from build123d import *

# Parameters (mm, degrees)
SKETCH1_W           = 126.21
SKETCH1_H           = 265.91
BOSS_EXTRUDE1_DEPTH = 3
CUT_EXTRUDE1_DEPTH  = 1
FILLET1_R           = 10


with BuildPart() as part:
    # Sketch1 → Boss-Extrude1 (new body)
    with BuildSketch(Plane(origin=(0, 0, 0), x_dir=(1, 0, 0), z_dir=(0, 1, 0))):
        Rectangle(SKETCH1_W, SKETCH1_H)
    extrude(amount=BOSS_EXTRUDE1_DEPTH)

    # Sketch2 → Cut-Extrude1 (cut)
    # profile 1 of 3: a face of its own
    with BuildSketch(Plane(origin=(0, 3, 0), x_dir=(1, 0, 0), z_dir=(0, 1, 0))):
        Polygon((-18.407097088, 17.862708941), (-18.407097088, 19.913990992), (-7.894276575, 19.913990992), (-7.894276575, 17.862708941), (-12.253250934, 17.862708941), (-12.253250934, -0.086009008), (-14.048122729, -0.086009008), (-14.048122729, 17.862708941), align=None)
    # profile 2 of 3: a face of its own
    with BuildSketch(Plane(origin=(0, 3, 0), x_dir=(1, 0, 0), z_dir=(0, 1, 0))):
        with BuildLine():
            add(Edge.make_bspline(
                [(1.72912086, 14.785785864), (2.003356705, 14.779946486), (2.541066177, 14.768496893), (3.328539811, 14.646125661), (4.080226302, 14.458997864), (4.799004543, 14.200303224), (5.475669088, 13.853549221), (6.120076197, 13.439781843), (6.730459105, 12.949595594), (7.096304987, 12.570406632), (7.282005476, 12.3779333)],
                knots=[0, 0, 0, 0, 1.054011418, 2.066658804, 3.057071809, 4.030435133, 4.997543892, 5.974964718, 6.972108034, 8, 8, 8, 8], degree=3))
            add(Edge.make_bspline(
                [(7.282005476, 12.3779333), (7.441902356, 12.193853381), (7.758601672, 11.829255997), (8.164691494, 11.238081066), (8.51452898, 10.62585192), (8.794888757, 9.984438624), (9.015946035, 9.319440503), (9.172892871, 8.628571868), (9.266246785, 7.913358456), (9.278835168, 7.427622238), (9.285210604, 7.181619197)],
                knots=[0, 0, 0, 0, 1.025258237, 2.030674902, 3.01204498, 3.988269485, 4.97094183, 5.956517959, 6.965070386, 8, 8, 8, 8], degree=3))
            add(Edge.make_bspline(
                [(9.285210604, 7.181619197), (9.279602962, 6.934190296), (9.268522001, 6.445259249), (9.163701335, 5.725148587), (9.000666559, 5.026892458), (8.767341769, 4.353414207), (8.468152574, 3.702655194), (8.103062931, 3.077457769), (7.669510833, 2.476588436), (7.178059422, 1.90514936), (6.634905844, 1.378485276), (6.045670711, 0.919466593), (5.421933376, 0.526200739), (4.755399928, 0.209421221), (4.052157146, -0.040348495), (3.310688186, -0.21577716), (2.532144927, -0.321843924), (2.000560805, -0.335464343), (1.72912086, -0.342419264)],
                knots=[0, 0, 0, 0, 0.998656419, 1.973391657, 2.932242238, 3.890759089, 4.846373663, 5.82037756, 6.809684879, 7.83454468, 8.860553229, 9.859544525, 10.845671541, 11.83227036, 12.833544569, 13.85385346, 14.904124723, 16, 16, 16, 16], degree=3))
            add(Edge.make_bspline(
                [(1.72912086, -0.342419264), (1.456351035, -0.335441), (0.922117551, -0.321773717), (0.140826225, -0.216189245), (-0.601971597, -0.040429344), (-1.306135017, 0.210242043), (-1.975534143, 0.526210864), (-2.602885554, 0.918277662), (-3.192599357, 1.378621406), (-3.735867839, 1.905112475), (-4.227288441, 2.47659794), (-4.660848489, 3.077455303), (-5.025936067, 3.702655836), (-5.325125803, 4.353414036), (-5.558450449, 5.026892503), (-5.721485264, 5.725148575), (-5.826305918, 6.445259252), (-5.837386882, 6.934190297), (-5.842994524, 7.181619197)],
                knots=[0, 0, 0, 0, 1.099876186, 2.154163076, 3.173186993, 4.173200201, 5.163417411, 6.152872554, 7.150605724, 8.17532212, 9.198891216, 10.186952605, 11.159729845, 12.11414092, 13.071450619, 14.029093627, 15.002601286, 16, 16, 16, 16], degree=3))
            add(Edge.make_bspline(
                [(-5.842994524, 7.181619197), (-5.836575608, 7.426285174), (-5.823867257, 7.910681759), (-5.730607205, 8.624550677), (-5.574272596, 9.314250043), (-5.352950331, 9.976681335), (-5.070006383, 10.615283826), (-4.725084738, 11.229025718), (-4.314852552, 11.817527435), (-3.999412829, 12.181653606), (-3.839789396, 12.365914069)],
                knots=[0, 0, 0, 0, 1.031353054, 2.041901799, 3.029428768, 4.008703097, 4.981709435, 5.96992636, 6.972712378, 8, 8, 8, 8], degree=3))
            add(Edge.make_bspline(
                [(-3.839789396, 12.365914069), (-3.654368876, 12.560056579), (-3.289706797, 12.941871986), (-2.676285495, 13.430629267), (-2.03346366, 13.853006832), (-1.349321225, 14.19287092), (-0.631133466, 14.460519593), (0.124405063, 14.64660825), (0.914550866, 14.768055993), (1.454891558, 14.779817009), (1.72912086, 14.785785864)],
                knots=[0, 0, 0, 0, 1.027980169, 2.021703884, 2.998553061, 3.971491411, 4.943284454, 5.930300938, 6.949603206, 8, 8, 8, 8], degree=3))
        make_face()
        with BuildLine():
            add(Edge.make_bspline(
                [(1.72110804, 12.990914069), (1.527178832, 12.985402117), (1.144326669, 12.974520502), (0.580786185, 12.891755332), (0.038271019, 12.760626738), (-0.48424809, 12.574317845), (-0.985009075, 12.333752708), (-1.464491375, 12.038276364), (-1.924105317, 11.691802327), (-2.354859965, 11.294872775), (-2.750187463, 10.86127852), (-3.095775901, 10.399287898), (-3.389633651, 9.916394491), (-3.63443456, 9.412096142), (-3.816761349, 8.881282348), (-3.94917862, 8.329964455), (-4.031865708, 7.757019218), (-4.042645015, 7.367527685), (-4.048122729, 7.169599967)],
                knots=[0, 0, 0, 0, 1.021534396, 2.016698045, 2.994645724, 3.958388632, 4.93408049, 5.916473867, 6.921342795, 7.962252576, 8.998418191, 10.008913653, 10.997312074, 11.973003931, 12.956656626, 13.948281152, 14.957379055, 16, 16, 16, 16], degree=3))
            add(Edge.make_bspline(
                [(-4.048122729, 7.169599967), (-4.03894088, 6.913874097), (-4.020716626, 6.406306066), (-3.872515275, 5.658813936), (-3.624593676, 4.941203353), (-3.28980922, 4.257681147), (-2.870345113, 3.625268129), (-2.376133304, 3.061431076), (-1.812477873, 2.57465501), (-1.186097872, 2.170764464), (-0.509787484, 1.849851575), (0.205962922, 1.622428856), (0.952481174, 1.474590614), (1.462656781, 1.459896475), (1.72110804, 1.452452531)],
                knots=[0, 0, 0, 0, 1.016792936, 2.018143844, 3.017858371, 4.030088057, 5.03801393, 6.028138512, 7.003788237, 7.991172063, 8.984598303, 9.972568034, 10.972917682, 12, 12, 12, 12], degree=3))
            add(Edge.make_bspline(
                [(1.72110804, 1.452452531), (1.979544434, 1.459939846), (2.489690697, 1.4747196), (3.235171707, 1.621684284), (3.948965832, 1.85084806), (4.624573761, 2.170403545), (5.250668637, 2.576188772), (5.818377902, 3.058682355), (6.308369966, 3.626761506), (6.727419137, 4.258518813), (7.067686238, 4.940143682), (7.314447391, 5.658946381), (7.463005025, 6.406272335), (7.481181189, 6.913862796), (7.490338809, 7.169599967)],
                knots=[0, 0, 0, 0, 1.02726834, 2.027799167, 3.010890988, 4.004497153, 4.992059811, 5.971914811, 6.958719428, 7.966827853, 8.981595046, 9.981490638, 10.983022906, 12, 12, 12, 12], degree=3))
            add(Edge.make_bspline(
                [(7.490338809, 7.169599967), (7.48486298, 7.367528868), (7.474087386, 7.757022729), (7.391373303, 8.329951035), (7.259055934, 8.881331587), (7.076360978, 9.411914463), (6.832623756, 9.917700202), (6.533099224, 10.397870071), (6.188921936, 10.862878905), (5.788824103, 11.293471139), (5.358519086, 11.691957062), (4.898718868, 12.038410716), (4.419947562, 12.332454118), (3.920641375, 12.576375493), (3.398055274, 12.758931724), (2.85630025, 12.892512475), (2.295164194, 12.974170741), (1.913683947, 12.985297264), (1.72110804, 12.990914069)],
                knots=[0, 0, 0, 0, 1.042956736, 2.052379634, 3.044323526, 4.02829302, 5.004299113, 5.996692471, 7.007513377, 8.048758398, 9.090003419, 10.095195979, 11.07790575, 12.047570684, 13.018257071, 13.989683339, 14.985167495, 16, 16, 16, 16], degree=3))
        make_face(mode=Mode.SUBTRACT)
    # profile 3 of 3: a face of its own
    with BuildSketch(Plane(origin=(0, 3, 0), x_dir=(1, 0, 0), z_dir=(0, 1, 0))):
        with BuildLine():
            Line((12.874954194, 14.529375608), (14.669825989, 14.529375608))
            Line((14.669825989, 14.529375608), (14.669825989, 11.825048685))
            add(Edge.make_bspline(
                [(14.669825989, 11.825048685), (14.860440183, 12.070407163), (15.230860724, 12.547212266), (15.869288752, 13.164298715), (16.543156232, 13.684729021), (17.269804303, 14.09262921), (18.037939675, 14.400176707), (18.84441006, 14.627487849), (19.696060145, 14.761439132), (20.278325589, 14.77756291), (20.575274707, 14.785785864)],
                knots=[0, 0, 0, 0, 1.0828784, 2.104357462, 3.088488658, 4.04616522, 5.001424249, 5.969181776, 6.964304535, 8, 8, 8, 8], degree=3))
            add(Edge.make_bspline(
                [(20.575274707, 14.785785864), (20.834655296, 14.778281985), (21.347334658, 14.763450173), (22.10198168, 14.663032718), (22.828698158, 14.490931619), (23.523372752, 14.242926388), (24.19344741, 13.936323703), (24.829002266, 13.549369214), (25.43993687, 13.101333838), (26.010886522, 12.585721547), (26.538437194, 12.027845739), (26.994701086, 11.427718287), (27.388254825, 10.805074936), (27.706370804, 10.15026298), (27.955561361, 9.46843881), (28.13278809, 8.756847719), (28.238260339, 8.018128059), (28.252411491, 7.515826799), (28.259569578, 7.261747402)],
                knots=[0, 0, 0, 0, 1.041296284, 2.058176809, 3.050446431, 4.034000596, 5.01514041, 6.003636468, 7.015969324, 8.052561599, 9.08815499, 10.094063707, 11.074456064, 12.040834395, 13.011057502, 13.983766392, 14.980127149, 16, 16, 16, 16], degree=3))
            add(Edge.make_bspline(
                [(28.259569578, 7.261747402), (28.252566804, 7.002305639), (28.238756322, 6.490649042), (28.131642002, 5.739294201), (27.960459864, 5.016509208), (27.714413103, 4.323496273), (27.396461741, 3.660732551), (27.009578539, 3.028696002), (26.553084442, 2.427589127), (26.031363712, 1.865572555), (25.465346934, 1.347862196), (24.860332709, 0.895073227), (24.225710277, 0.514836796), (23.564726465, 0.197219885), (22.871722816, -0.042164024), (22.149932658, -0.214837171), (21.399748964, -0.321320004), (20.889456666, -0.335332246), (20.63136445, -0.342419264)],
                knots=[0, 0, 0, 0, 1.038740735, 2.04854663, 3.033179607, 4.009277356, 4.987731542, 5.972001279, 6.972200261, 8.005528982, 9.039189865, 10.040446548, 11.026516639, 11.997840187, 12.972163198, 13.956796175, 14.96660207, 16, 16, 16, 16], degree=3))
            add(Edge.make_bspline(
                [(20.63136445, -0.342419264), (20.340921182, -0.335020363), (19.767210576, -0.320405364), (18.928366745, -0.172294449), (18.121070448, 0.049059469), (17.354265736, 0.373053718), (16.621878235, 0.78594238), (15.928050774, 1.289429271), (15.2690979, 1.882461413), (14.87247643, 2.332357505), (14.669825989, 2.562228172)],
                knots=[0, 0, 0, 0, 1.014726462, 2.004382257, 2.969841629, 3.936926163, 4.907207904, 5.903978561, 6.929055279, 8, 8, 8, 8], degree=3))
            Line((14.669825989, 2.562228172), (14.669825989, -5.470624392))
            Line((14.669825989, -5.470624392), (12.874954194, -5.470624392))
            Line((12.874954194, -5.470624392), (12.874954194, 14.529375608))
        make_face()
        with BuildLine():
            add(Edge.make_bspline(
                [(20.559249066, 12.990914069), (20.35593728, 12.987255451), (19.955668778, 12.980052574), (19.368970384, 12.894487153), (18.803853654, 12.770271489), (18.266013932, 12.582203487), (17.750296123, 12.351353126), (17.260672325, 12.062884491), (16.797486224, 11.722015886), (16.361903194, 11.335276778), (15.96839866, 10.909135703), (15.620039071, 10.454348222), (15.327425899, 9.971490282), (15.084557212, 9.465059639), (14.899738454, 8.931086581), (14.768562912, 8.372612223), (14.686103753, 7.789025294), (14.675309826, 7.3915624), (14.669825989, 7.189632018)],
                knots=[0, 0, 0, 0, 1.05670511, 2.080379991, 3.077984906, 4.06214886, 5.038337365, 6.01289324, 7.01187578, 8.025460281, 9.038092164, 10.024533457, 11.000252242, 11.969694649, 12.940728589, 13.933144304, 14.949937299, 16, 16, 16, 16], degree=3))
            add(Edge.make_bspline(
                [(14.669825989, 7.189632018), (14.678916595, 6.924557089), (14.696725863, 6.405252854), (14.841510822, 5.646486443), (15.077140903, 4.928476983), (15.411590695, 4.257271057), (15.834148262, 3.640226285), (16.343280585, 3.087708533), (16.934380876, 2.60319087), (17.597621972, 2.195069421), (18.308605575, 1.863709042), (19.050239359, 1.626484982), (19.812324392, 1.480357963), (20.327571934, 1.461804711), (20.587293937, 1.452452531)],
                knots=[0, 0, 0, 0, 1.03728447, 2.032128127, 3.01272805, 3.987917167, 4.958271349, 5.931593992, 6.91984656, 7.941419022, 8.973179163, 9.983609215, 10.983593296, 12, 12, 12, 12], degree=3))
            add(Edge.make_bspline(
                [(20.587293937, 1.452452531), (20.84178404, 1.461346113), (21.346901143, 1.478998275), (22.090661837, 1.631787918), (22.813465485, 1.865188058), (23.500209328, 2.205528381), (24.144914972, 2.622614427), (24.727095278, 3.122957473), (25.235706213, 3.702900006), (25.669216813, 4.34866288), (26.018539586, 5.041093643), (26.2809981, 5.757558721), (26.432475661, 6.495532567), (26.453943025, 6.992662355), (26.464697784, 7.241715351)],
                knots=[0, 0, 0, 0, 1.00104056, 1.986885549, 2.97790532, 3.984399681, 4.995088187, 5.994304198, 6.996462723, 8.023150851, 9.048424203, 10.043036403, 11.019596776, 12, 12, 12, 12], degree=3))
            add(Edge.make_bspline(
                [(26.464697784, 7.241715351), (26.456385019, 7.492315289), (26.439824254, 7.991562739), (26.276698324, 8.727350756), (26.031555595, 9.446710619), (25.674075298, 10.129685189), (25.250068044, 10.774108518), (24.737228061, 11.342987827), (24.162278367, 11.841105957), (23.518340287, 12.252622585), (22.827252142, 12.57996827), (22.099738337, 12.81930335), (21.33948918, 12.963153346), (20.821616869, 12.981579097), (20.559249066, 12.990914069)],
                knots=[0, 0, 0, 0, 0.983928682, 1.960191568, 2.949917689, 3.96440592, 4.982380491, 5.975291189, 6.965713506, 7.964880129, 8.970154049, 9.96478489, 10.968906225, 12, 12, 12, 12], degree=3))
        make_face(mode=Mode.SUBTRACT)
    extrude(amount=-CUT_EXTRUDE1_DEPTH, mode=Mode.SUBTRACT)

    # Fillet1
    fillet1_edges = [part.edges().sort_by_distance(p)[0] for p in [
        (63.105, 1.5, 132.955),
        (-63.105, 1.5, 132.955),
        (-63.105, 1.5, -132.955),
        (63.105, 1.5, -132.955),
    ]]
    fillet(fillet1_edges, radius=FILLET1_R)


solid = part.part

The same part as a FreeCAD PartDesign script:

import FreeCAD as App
import Part
import Sketcher
from FreeCAD import Vector


def edges_at(feature, points):
    """Names of the edges that pass closest to the given points."""
    edges = feature.Shape.Edges
    near = lambda p: min(range(len(edges)), key=lambda i: edges[i].distToShape(Part.Vertex(*p))[0])
    return sorted({f"Edge{near(p) + 1}" for p in points})

doc = App.newDocument("Part")
params = doc.addObject("Spreadsheet::Sheet", "Params")
for row, (alias, value) in enumerate([
    ("sketch1_width", "126.21 mm"),
    ("sketch1_height", "265.91 mm"),
    ("pad1_length", "3 mm"),
    ("sketch2_height", "20 mm"),
    ("pocket1_length", "1 mm"),
    ("fillet_radius", "10 mm"),
], start=1):
    params.set(f"A{row}", alias)
    params.set(f"B{row}", "=" + value)
    params.setAlias(f"B{row}", alias)

body = doc.addObject("PartDesign::Body", "Body")

sketch1 = doc.addObject("Sketcher::SketchObject", "Sketch")
body.addObject(sketch1)
sketch1.AttachmentSupport = (doc.XZ_Plane, [""])
sketch1.MapMode = "FlatFace"
sketch1.addGeometry([
    Part.LineSegment(Vector(-63.105, -132.955, 0), Vector(-63.105, 132.955, 0)),
    Part.LineSegment(Vector(-63.105, 132.955, 0), Vector(63.105, 132.955, 0)),
    Part.LineSegment(Vector(63.105, 132.955, 0), Vector(63.105, -132.955, 0)),
    Part.LineSegment(Vector(63.105, -132.955, 0), Vector(-63.105, -132.955, 0)),
], False)
sketch1.addConstraint([
    Sketcher.Constraint("Coincident", 0, 2, 1, 1),
    Sketcher.Constraint("Coincident", 1, 2, 2, 1),
    Sketcher.Constraint("Coincident", 2, 2, 3, 1),
    Sketcher.Constraint("Coincident", 3, 2, 0, 1),
    Sketcher.Constraint("Vertical", 0),
    Sketcher.Constraint("Horizontal", 1),
    Sketcher.Constraint("Vertical", 2),
    Sketcher.Constraint("Horizontal", 3),
    Sketcher.Constraint("Symmetric", 0, 2, 2, 2, -1, 1),
    Sketcher.Constraint("DistanceX", 1, 1, 1, 2, 126.21),
    Sketcher.Constraint("DistanceY", 0, 1, 0, 2, 265.91),
])
sketch1.setExpression("Constraints[9]", "Params.sketch1_width")
sketch1.setExpression("Constraints[10]", "Params.sketch1_height")
pad1 = doc.addObject("PartDesign::Pad", "Pad")
body.addObject(pad1)
pad1.Profile = sketch1
pad1.setExpression("Length", "Params.pad1_length")
pad1.Reversed = True

sketch2 = doc.addObject("Sketcher::SketchObject", "Sketch001")
body.addObject(sketch2)
sketch2.AttachmentSupport = (doc.XZ_Plane, [""])
sketch2.MapMode = "FlatFace"
sketch2.AttachmentOffset = App.Placement(Vector(0, 0, -3), App.Rotation())
sketch2.addGeometry([
    Part.LineSegment(Vector(-18.407097, -19.913991, 0), Vector(-18.407097, -17.862709, 0)),
    Part.LineSegment(Vector(-18.407097, -17.862709, 0), Vector(-14.048123, -17.862709, 0)),
    Part.LineSegment(Vector(-14.048123, -17.862709, 0), Vector(-14.048123, 0.086009, 0)),
    Part.LineSegment(Vector(-14.048123, 0.086009, 0), Vector(-12.253251, 0.086009, 0)),
    Part.LineSegment(Vector(-12.253251, 0.086009, 0), Vector(-12.253251, -17.862709, 0)),
    Part.LineSegment(Vector(-12.253251, -17.862709, 0), Vector(-7.894277, -17.862709, 0)),
    Part.LineSegment(Vector(-7.894277, -17.862709, 0), Vector(-7.894277, -19.913991, 0)),
    Part.LineSegment(Vector(-7.894277, -19.913991, 0), Vector(-18.407097, -19.913991, 0)),
    Part.BSplineCurve([Vector(1.729121, -14.785786, 0), Vector(2.003357, -14.779946, 0), Vector(2.541066, -14.768497, 0), Vector(3.32854, -14.646126, 0), Vector(4.080226, -14.458998, 0), Vector(4.799005, -14.200303, 0), Vector(5.475669, -13.853549, 0), Vector(6.120076, -13.439782, 0), Vector(6.730459, -12.949596, 0), Vector(7.096305, -12.570407, 0), Vector(7.282005, -12.377933, 0)], [4, 1, 1, 1, 1, 1, 1, 1, 4], [0, 1.054011418, 2.066658804, 3.057071809, 4.030435133, 4.997543892, 5.974964718, 6.972108034, 8], False, 3, [1, 1, 1, 1, 1, 1, 1, 1, 1, 1, 1], False),
    Part.BSplineCurve([Vector(-3.839789, -12.365914, 0), Vector(-3.654369, -12.560057, 0), Vector(-3.289707, -12.941872, 0), Vector(-2.676285, -13.430629, 0), Vector(-2.033464, -13.853007, 0), Vector(-1.349321, -14.192871, 0), Vector(-0.631133, -14.46052, 0), Vector(0.124405, -14.646608, 0), Vector(0.914551, -14.768056, 0), Vector(1.454892, -14.779817, 0), Vector(1.729121, -14.785786, 0)], [4, 1, 1, 1, 1, 1, 1, 1, 4], [0, 1.027980169, 2.021703884, 2.998553061, 3.971491411, 4.943284454, 5.930300938, 6.949603206, 8], False, 3, [1, 1, 1, 1, 1, 1, 1, 1, 1, 1, 1], False),
    Part.BSplineCurve([Vector(-5.842995, -7.181619, 0), Vector(-5.836576, -7.426285, 0), Vector(-5.823867, -7.910682, 0), Vector(-5.730607, -8.624551, 0), Vector(-5.574273, -9.31425, 0), Vector(-5.35295, -9.976681, 0), Vector(-5.070006, -10.615284, 0), Vector(-4.725085, -11.229026, 0), Vector(-4.314853, -11.817527, 0), Vector(-3.999413, -12.181654, 0), Vector(-3.839789, -12.365914, 0)], [4, 1, 1, 1, 1, 1, 1, 1, 4], [0, 1.031353054, 2.041901799, 3.029428768, 4.008703097, 4.981709435, 5.96992636, 6.972712378, 8], False, 3, [1, 1, 1, 1, 1, 1, 1, 1, 1, 1, 1], False),
    Part.BSplineCurve([Vector(1.729121, 0.342419, 0), Vector(1.456351, 0.335441, 0), Vector(0.922118, 0.321774, 0), Vector(0.140826, 0.216189, 0), Vector(-0.601972, 0.040429, 0), Vector(-1.306135, -0.210242, 0), Vector(-1.975534, -0.526211, 0), Vector(-2.602886, -0.918278, 0), Vector(-3.192599, -1.378621, 0), Vector(-3.735868, -1.905112, 0), Vector(-4.227288, -2.476598, 0), Vector(-4.660848, -3.077455, 0), Vector(-5.025936, -3.702656, 0), Vector(-5.325126, -4.353414, 0), Vector(-5.55845, -5.026893, 0), Vector(-5.721485, -5.725149, 0), Vector(-5.826306, -6.445259, 0), Vector(-5.837387, -6.93419, 0), Vector(-5.842995, -7.181619, 0)], [4, 1, 1, 1, 1, 1, 1, 1, 1, 1, 1, 1, 1, 1, 1, 1, 4], [0, 1.099876186, 2.154163076, 3.173186993, 4.173200201, 5.163417411, 6.152872554, 7.150605724, 8.17532212, 9.198891216, 10.186952605, 11.159729845, 12.11414092, 13.071450619, 14.029093627, 15.002601286, 16], False, 3, [1, 1, 1, 1, 1, 1, 1, 1, 1, 1, 1, 1, 1, 1, 1, 1, 1, 1, 1], False),
    Part.BSplineCurve([Vector(9.285211, -7.181619, 0), Vector(9.279603, -6.93419, 0), Vector(9.268522, -6.445259, 0), Vector(9.163701, -5.725149, 0), Vector(9.000667, -5.026892, 0), Vector(8.767342, -4.353414, 0), Vector(8.468153, -3.702655, 0), Vector(8.103063, -3.077458, 0), Vector(7.669511, -2.476588, 0), Vector(7.178059, -1.905149, 0), Vector(6.634906, -1.378485, 0), Vector(6.045671, -0.919467, 0), Vector(5.421933, -0.526201, 0), Vector(4.7554, -0.209421, 0), Vector(4.052157, 0.040348, 0), Vector(3.310688, 0.215777, 0), Vector(2.532145, 0.321844, 0), Vector(2.000561, 0.335464, 0), Vector(1.729121, 0.342419, 0)], [4, 1, 1, 1, 1, 1, 1, 1, 1, 1, 1, 1, 1, 1, 1, 1, 4], [0, 0.998656419, 1.973391657, 2.932242238, 3.890759089, 4.846373663, 5.82037756, 6.809684879, 7.83454468, 8.860553229, 9.859544525, 10.845671541, 11.83227036, 12.833544569, 13.85385346, 14.904124723, 16], False, 3, [1, 1, 1, 1, 1, 1, 1, 1, 1, 1, 1, 1, 1, 1, 1, 1, 1, 1, 1], False),
    Part.BSplineCurve([Vector(7.282005, -12.377933, 0), Vector(7.441902, -12.193853, 0), Vector(7.758602, -11.829256, 0), Vector(8.164691, -11.238081, 0), Vector(8.514529, -10.625852, 0), Vector(8.794889, -9.984439, 0), Vector(9.015946, -9.319441, 0), Vector(9.172893, -8.628572, 0), Vector(9.266247, -7.913358, 0), Vector(9.278835, -7.427622, 0), Vector(9.285211, -7.181619, 0)], [4, 1, 1, 1, 1, 1, 1, 1, 4], [0, 1.025258237, 2.030674902, 3.01204498, 3.988269485, 4.97094183, 5.956517959, 6.965070386, 8], False, 3, [1, 1, 1, 1, 1, 1, 1, 1, 1, 1, 1], False),
    Part.BSplineCurve([Vector(7.490339, -7.1696, 0), Vector(7.484863, -7.367529, 0), Vector(7.474087, -7.757023, 0), Vector(7.391373, -8.329951, 0), Vector(7.259056, -8.881332, 0), Vector(7.076361, -9.411914, 0), Vector(6.832624, -9.9177, 0), Vector(6.533099, -10.39787, 0), Vector(6.188922, -10.862879, 0), Vector(5.788824, -11.293471, 0), Vector(5.358519, -11.691957, 0), Vector(4.898719, -12.038411, 0), Vector(4.419948, -12.332454, 0), Vector(3.920641, -12.576375, 0), Vector(3.398055, -12.758932, 0), Vector(2.8563, -12.892512, 0), Vector(2.295164, -12.974171, 0), Vector(1.913684, -12.985297, 0), Vector(1.721108, -12.990914, 0)], [4, 1, 1, 1, 1, 1, 1, 1, 1, 1, 1, 1, 1, 1, 1, 1, 4], [0, 1.042956736, 2.052379634, 3.044323526, 4.02829302, 5.004299113, 5.996692471, 7.007513377, 8.048758398, 9.090003419, 10.095195979, 11.07790575, 12.047570684, 13.018257071, 13.989683339, 14.985167495, 16], False, 3, [1, 1, 1, 1, 1, 1, 1, 1, 1, 1, 1, 1, 1, 1, 1, 1, 1, 1, 1], False),
    Part.BSplineCurve([Vector(1.721108, -1.452453, 0), Vector(1.979544, -1.45994, 0), Vector(2.489691, -1.47472, 0), Vector(3.235172, -1.621684, 0), Vector(3.948966, -1.850848, 0), Vector(4.624574, -2.170404, 0), Vector(5.250669, -2.576189, 0), Vector(5.818378, -3.058682, 0), Vector(6.30837, -3.626762, 0), Vector(6.727419, -4.258519, 0), Vector(7.067686, -4.940144, 0), Vector(7.314447, -5.658946, 0), Vector(7.463005, -6.406272, 0), Vector(7.481181, -6.913863, 0), Vector(7.490339, -7.1696, 0)], [4, 1, 1, 1, 1, 1, 1, 1, 1, 1, 1, 1, 4], [0, 1.02726834, 2.027799167, 3.010890988, 4.004497153, 4.992059811, 5.971914811, 6.958719428, 7.966827853, 8.981595046, 9.981490638, 10.983022906, 12], False, 3, [1, 1, 1, 1, 1, 1, 1, 1, 1, 1, 1, 1, 1, 1, 1], False),
    Part.BSplineCurve([Vector(-4.048123, -7.1696, 0), Vector(-4.038941, -6.913874, 0), Vector(-4.020717, -6.406306, 0), Vector(-3.872515, -5.658814, 0), Vector(-3.624594, -4.941203, 0), Vector(-3.289809, -4.257681, 0), Vector(-2.870345, -3.625268, 0), Vector(-2.376133, -3.061431, 0), Vector(-1.812478, -2.574655, 0), Vector(-1.186098, -2.170764, 0), Vector(-0.509787, -1.849852, 0), Vector(0.205963, -1.622429, 0), Vector(0.952481, -1.474591, 0), Vector(1.462657, -1.459896, 0), Vector(1.721108, -1.452453, 0)], [4, 1, 1, 1, 1, 1, 1, 1, 1, 1, 1, 1, 4], [0, 1.016792936, 2.018143844, 3.017858371, 4.030088057, 5.03801393, 6.028138512, 7.003788237, 7.991172063, 8.984598303, 9.972568034, 10.972917682, 12], False, 3, [1, 1, 1, 1, 1, 1, 1, 1, 1, 1, 1, 1, 1, 1, 1], False),
    Part.BSplineCurve([Vector(1.721108, -12.990914, 0), Vector(1.527179, -12.985402, 0), Vector(1.144327, -12.974521, 0), Vector(0.580786, -12.891755, 0), Vector(0.038271, -12.760627, 0), Vector(-0.484248, -12.574318, 0), Vector(-0.985009, -12.333753, 0), Vector(-1.464491, -12.038276, 0), Vector(-1.924105, -11.691802, 0), Vector(-2.35486, -11.294873, 0), Vector(-2.750187, -10.861279, 0), Vector(-3.095776, -10.399288, 0), Vector(-3.389634, -9.916394, 0), Vector(-3.634435, -9.412096, 0), Vector(-3.816761, -8.881282, 0), Vector(-3.949179, -8.329964, 0), Vector(-4.031866, -7.757019, 0), Vector(-4.042645, -7.367528, 0), Vector(-4.048123, -7.1696, 0)], [4, 1, 1, 1, 1, 1, 1, 1, 1, 1, 1, 1, 1, 1, 1, 1, 4], [0, 1.021534396, 2.016698045, 2.994645724, 3.958388632, 4.93408049, 5.916473867, 6.921342795, 7.962252576, 8.998418191, 10.008913653, 10.997312074, 11.973003931, 12.956656626, 13.948281152, 14.957379055, 16], False, 3, [1, 1, 1, 1, 1, 1, 1, 1, 1, 1, 1, 1, 1, 1, 1, 1, 1, 1, 1], False),
    Part.LineSegment(Vector(14.669826, -14.529376, 0), Vector(12.874954, -14.529376, 0)),
    Part.LineSegment(Vector(12.874954, -14.529376, 0), Vector(12.874954, 5.470624, 0)),
    Part.LineSegment(Vector(12.874954, 5.470624, 0), Vector(14.669826, 5.470624, 0)),
    Part.LineSegment(Vector(14.669826, 5.470624, 0), Vector(14.669826, -2.562228, 0)),
    Part.BSplineCurve([Vector(20.631364, 0.342419, 0), Vector(20.340921, 0.33502, 0), Vector(19.767211, 0.320405, 0), Vector(18.928367, 0.172294, 0), Vector(18.12107, -0.049059, 0), Vector(17.354266, -0.373054, 0), Vector(16.621878, -0.785942, 0), Vector(15.928051, -1.289429, 0), Vector(15.269098, -1.882461, 0), Vector(14.872476, -2.332358, 0), Vector(14.669826, -2.562228, 0)], [4, 1, 1, 1, 1, 1, 1, 1, 4], [0, 1.014726462, 2.004382257, 2.969841629, 3.936926163, 4.907207904, 5.903978561, 6.929055279, 8], False, 3, [1, 1, 1, 1, 1, 1, 1, 1, 1, 1, 1], False),
    Part.BSplineCurve([Vector(28.25957, -7.261747, 0), Vector(28.252567, -7.002306, 0), Vector(28.238756, -6.490649, 0), Vector(28.131642, -5.739294, 0), Vector(27.96046, -5.016509, 0), Vector(27.714413, -4.323496, 0), Vector(27.396462, -3.660733, 0), Vector(27.009579, -3.028696, 0), Vector(26.553084, -2.427589, 0), Vector(26.031364, -1.865573, 0), Vector(25.465347, -1.347862, 0), Vector(24.860333, -0.895073, 0), Vector(24.22571, -0.514837, 0), Vector(23.564726, -0.19722, 0), Vector(22.871723, 0.042164, 0), Vector(22.149933, 0.214837, 0), Vector(21.399749, 0.32132, 0), Vector(20.889457, 0.335332, 0), Vector(20.631364, 0.342419, 0)], [4, 1, 1, 1, 1, 1, 1, 1, 1, 1, 1, 1, 1, 1, 1, 1, 4], [0, 1.038740735, 2.04854663, 3.033179607, 4.009277356, 4.987731542, 5.972001279, 6.972200261, 8.005528982, 9.039189865, 10.040446548, 11.026516639, 11.997840187, 12.972163198, 13.956796175, 14.96660207, 16], False, 3, [1, 1, 1, 1, 1, 1, 1, 1, 1, 1, 1, 1, 1, 1, 1, 1, 1, 1, 1], False),
    Part.BSplineCurve([Vector(20.575275, -14.785786, 0), Vector(20.834655, -14.778282, 0), Vector(21.347335, -14.76345, 0), Vector(22.101982, -14.663033, 0), Vector(22.828698, -14.490932, 0), Vector(23.523373, -14.242926, 0), Vector(24.193447, -13.936324, 0), Vector(24.829002, -13.549369, 0), Vector(25.439937, -13.101334, 0), Vector(26.010887, -12.585722, 0), Vector(26.538437, -12.027846, 0), Vector(26.994701, -11.427718, 0), Vector(27.388255, -10.805075, 0), Vector(27.706371, -10.150263, 0), Vector(27.955561, -9.468439, 0), Vector(28.132788, -8.756848, 0), Vector(28.23826, -8.018128, 0), Vector(28.252411, -7.515827, 0), Vector(28.25957, -7.261747, 0)], [4, 1, 1, 1, 1, 1, 1, 1, 1, 1, 1, 1, 1, 1, 1, 1, 4], [0, 1.041296284, 2.058176809, 3.050446431, 4.034000596, 5.01514041, 6.003636468, 7.015969324, 8.052561599, 9.08815499, 10.094063707, 11.074456064, 12.040834395, 13.011057502, 13.983766392, 14.980127149, 16], False, 3, [1, 1, 1, 1, 1, 1, 1, 1, 1, 1, 1, 1, 1, 1, 1, 1, 1, 1, 1], False),
    Part.BSplineCurve([Vector(14.669826, -11.825049, 0), Vector(14.86044, -12.070407, 0), Vector(15.230861, -12.547212, 0), Vector(15.869289, -13.164299, 0), Vector(16.543156, -13.684729, 0), Vector(17.269804, -14.092629, 0), Vector(18.03794, -14.400177, 0), Vector(18.84441, -14.627488, 0), Vector(19.69606, -14.761439, 0), Vector(20.278326, -14.777563, 0), Vector(20.575275, -14.785786, 0)], [4, 1, 1, 1, 1, 1, 1, 1, 4], [0, 1.0828784, 2.104357462, 3.088488658, 4.04616522, 5.001424249, 5.969181776, 6.964304535, 8], False, 3, [1, 1, 1, 1, 1, 1, 1, 1, 1, 1, 1], False),
    Part.LineSegment(Vector(14.669826, -11.825049, 0), Vector(14.669826, -14.529376, 0)),
    Part.BSplineCurve([Vector(26.464698, -7.241715, 0), Vector(26.456385, -7.492315, 0), Vector(26.439824, -7.991563, 0), Vector(26.276698, -8.727351, 0), Vector(26.031556, -9.446711, 0), Vector(25.674075, -10.129685, 0), Vector(25.250068, -10.774109, 0), Vector(24.737228, -11.342988, 0), Vector(24.162278, -11.841106, 0), Vector(23.51834, -12.252623, 0), Vector(22.827252, -12.579968, 0), Vector(22.099738, -12.819303, 0), Vector(21.339489, -12.963153, 0), Vector(20.821617, -12.981579, 0), Vector(20.559249, -12.990914, 0)], [4, 1, 1, 1, 1, 1, 1, 1, 1, 1, 1, 1, 4], [0, 0.983928682, 1.960191568, 2.949917689, 3.96440592, 4.982380491, 5.975291189, 6.965713506, 7.964880129, 8.970154049, 9.96478489, 10.968906225, 12], False, 3, [1, 1, 1, 1, 1, 1, 1, 1, 1, 1, 1, 1, 1, 1, 1], False),
    Part.BSplineCurve([Vector(20.587294, -1.452453, 0), Vector(20.841784, -1.461346, 0), Vector(21.346901, -1.478998, 0), Vector(22.090662, -1.631788, 0), Vector(22.813465, -1.865188, 0), Vector(23.500209, -2.205528, 0), Vector(24.144915, -2.622614, 0), Vector(24.727095, -3.122957, 0), Vector(25.235706, -3.7029, 0), Vector(25.669217, -4.348663, 0), Vector(26.01854, -5.041094, 0), Vector(26.280998, -5.757559, 0), Vector(26.432476, -6.495533, 0), Vector(26.453943, -6.992662, 0), Vector(26.464698, -7.241715, 0)], [4, 1, 1, 1, 1, 1, 1, 1, 1, 1, 1, 1, 4], [0, 1.00104056, 1.986885549, 2.97790532, 3.984399681, 4.995088187, 5.994304198, 6.996462723, 8.023150851, 9.048424203, 10.043036403, 11.019596776, 12], False, 3, [1, 1, 1, 1, 1, 1, 1, 1, 1, 1, 1, 1, 1, 1, 1], False),
    Part.BSplineCurve([Vector(14.669826, -7.189632, 0), Vector(14.678917, -6.924557, 0), Vector(14.696726, -6.405253, 0), Vector(14.841511, -5.646486, 0), Vector(15.077141, -4.928477, 0), Vector(15.411591, -4.257271, 0), Vector(15.834148, -3.640226, 0), Vector(16.343281, -3.087709, 0), Vector(16.934381, -2.603191, 0), Vector(17.597622, -2.195069, 0), Vector(18.308606, -1.863709, 0), Vector(19.050239, -1.626485, 0), Vector(19.812324, -1.480358, 0), Vector(20.327572, -1.461805, 0), Vector(20.587294, -1.452453, 0)], [4, 1, 1, 1, 1, 1, 1, 1, 1, 1, 1, 1, 4], [0, 1.03728447, 2.032128127, 3.01272805, 3.987917167, 4.958271349, 5.931593992, 6.91984656, 7.941419022, 8.973179163, 9.983609215, 10.983593296, 12], False, 3, [1, 1, 1, 1, 1, 1, 1, 1, 1, 1, 1, 1, 1, 1, 1], False),
    Part.BSplineCurve([Vector(20.559249, -12.990914, 0), Vector(20.355937, -12.987255, 0), Vector(19.955669, -12.980053, 0), Vector(19.36897, -12.894487, 0), Vector(18.803854, -12.770271, 0), Vector(18.266014, -12.582203, 0), Vector(17.750296, -12.351353, 0), Vector(17.260672, -12.062884, 0), Vector(16.797486, -11.722016, 0), Vector(16.361903, -11.335277, 0), Vector(15.968399, -10.909136, 0), Vector(15.620039, -10.454348, 0), Vector(15.327426, -9.97149, 0), Vector(15.084557, -9.46506, 0), Vector(14.899738, -8.931087, 0), Vector(14.768563, -8.372612, 0), Vector(14.686104, -7.789025, 0), Vector(14.67531, -7.391562, 0), Vector(14.669826, -7.189632, 0)], [4, 1, 1, 1, 1, 1, 1, 1, 1, 1, 1, 1, 1, 1, 1, 1, 4], [0, 1.05670511, 2.080379991, 3.077984906, 4.06214886, 5.038337365, 6.01289324, 7.01187578, 8.025460281, 9.038092164, 10.024533457, 11.000252242, 11.969694649, 12.940728589, 13.933144304, 14.949937299, 16], False, 3, [1, 1, 1, 1, 1, 1, 1, 1, 1, 1, 1, 1, 1, 1, 1, 1, 1, 1, 1], False),
], False)
sketch2.addConstraint([
    Sketcher.Constraint("Block", 8),
    Sketcher.Constraint("Block", 9),
    Sketcher.Constraint("Block", 10),
    Sketcher.Constraint("Block", 11),
    Sketcher.Constraint("Block", 12),
    Sketcher.Constraint("Block", 13),
    Sketcher.Constraint("Block", 14),
    Sketcher.Constraint("Block", 15),
    Sketcher.Constraint("Block", 16),
    Sketcher.Constraint("Block", 17),
    Sketcher.Constraint("Block", 22),
    Sketcher.Constraint("Block", 23),
    Sketcher.Constraint("Block", 24),
    Sketcher.Constraint("Block", 25),
    Sketcher.Constraint("Block", 27),
    Sketcher.Constraint("Block", 28),
    Sketcher.Constraint("Block", 29),
    Sketcher.Constraint("Block", 30),
    Sketcher.Constraint("Coincident", 0, 2, 1, 1),
    Sketcher.Constraint("Coincident", 1, 2, 2, 1),
    Sketcher.Constraint("Coincident", 2, 2, 3, 1),
    Sketcher.Constraint("Coincident", 3, 2, 4, 1),
    Sketcher.Constraint("Coincident", 4, 2, 5, 1),
    Sketcher.Constraint("Coincident", 5, 2, 6, 1),
    Sketcher.Constraint("Coincident", 6, 2, 7, 1),
    Sketcher.Constraint("Coincident", 7, 2, 0, 1),
    Sketcher.Constraint("Coincident", 18, 2, 19, 1),
    Sketcher.Constraint("Coincident", 19, 2, 20, 1),
    Sketcher.Constraint("Coincident", 20, 2, 21, 1),
    Sketcher.Constraint("Coincident", 21, 2, 22, 2),
    Sketcher.Constraint("Coincident", 25, 1, 26, 1),
    Sketcher.Constraint("Coincident", 26, 2, 18, 1),
    Sketcher.Constraint("Vertical", 0),
    Sketcher.Constraint("Horizontal", 1),
    Sketcher.Constraint("Vertical", 2),
    Sketcher.Constraint("Horizontal", 3),
    Sketcher.Constraint("Vertical", 4),
    Sketcher.Constraint("Horizontal", 5),
    Sketcher.Constraint("Vertical", 6),
    Sketcher.Constraint("Horizontal", 7),
    Sketcher.Constraint("Horizontal", 18),
    Sketcher.Constraint("Vertical", 19),
    Sketcher.Constraint("Horizontal", 20),
    Sketcher.Constraint("Vertical", 21),
    Sketcher.Constraint("Vertical", 26),
    Sketcher.Constraint("Horizontal", 1, 2, 4, 2),
    Sketcher.Constraint("Equal", 1, 5),
    Sketcher.Constraint("Equal", 3, 18),
    Sketcher.Constraint("DistanceY", 19, 1, 19, 2, 20.0),
    Sketcher.Constraint("DistanceY", 6, 2, 3, 2, 20.0),
    Sketcher.Constraint("DistanceX", 3, 1, 3, 2, 1.794872),
    Sketcher.Constraint("DistanceX", 7, 2, 7, 1, 10.512821),
    Sketcher.Constraint("DistanceY", 0, 1, 0, 2, 2.051282),
    Sketcher.Constraint("DistanceY", 21, 2, 21, 1, 8.032853),
    Sketcher.Constraint("DistanceY", 0, 2, -1, 1, 17.862709),
    Sketcher.Constraint("DistanceX", 3, 2, -1, 1, 12.253251),
])
sketch2.setExpression("Constraints[48]", "Params.sketch2_height")
pocket1 = doc.addObject("PartDesign::Pocket", "Pocket")
body.addObject(pocket1)
pocket1.Profile = sketch2
pocket1.setExpression("Length", "Params.pocket1_length")
pocket1.Reversed = True
doc.recompute()

fillet = doc.addObject("PartDesign::Fillet", "Fillet")
body.addObject(fillet)
fillet.Base = (pocket1, edges_at(pocket1, [
    (63.105, 1.5, 132.955),
    (-63.105, 1.5, 132.955),
    (-63.105, 1.5, -132.955),
    (63.105, 1.5, -132.955),
]))
fillet.setExpression("Radius", "Params.fillet_radius")

doc.recompute()
